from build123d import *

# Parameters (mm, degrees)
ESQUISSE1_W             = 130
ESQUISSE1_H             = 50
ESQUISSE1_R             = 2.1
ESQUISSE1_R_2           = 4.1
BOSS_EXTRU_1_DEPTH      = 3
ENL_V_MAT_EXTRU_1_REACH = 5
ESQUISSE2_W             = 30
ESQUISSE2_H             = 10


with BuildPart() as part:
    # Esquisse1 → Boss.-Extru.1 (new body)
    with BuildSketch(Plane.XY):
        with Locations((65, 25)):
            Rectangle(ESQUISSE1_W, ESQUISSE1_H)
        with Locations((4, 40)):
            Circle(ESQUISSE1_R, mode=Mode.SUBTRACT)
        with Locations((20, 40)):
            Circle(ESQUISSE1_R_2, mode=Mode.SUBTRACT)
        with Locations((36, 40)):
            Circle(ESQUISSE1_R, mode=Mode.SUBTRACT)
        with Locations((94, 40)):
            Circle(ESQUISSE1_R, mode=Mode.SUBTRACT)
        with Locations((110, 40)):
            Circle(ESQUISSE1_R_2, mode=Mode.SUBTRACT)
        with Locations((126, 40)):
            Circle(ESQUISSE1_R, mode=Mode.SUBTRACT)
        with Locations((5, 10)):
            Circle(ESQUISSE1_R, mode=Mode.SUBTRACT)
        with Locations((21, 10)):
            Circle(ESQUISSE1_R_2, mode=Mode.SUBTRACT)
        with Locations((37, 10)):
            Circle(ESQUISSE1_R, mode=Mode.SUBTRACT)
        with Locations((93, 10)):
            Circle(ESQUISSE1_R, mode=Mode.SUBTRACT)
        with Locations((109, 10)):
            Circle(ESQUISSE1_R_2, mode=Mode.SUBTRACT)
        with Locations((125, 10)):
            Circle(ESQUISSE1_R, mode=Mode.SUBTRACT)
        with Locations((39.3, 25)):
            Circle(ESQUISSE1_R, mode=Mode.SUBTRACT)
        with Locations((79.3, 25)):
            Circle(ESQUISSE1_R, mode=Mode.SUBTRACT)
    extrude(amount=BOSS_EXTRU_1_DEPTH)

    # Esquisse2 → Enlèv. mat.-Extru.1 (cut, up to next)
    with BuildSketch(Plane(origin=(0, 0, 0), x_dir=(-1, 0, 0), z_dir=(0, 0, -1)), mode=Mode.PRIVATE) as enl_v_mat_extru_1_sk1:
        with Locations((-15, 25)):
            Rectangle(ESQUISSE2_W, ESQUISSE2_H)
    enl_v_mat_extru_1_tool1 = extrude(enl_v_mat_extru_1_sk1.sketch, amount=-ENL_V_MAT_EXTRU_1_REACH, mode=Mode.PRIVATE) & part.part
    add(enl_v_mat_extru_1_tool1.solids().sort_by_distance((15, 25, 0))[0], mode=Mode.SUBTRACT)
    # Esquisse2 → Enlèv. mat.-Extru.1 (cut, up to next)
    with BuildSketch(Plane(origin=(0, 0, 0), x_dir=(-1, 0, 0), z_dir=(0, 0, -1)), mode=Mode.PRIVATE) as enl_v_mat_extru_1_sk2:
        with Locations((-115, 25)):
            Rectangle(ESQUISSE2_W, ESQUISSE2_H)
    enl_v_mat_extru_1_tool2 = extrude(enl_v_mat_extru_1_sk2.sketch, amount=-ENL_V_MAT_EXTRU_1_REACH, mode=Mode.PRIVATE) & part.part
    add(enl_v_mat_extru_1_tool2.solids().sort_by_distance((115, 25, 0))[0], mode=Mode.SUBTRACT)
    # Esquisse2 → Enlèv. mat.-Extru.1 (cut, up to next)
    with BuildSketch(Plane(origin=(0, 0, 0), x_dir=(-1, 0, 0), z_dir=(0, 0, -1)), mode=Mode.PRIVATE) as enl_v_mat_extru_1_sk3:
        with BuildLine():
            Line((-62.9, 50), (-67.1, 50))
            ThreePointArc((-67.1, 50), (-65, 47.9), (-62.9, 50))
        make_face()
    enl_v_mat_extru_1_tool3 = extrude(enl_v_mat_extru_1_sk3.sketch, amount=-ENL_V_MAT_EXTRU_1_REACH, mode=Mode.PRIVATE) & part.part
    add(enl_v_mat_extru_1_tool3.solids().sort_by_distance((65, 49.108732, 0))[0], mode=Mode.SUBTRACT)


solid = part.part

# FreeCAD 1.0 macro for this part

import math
import FreeCAD as App
import Part
import Sketcher
from FreeCAD import Vector


def add_polygon(sketch, points):
    """Adds a closed chain of lines whose ends are joined by coincident constraints."""
    first, n = sketch.GeometryCount, len(points)
    for a, b in zip(points, points[1:] + points[:1]):
        sketch.addGeometry(Part.LineSegment(App.Vector(*a, 0), App.Vector(*b, 0)), False)
    for i in range(n):
        sketch.addConstraint(Sketcher.Constraint("Coincident", first + i, 2, first + (i + 1) % n, 1))

doc = App.newDocument("Part")
body = doc.addObject("PartDesign::Body", "Body")

sketch1 = body.newObject("Sketcher::SketchObject", "Sketch")
sketch1.AttachmentSupport = (doc.getObject("XY_Plane"), [""])
sketch1.MapMode = "FlatFace"
add_polygon(sketch1, [(0, 50), (0, 0), (130, 0), (130, 50)])
sketch1.addGeometry(Part.Circle(Vector(5, 10, 0), Vector(0, 0, 1), 2.1), False)
sketch1.addGeometry(Part.Circle(Vector(21, 10, 0), Vector(0, 0, 1), 4.1), False)
sketch1.addGeometry(Part.Circle(Vector(37, 10, 0), Vector(0, 0, 1), 2.1), False)
sketch1.addGeometry(Part.Circle(Vector(39.3, 25, 0), Vector(0, 0, 1), 2.1), False)
sketch1.addGeometry(Part.Circle(Vector(93, 10, 0), Vector(0, 0, 1), 2.1), False)
sketch1.addGeometry(Part.Circle(Vector(109, 10, 0), Vector(0, 0, 1), 4.1), False)
sketch1.addGeometry(Part.Circle(Vector(125, 10, 0), Vector(0, 0, 1), 2.1), False)
sketch1.addGeometry(Part.Circle(Vector(79.3, 25, 0), Vector(0, 0, 1), 2.1), False)
sketch1.addGeometry(Part.Circle(Vector(4, 40, 0), Vector(0, 0, 1), 2.1), False)
sketch1.addGeometry(Part.Circle(Vector(20, 40, 0), Vector(0, 0, 1), 4.1), False)
sketch1.addGeometry(Part.Circle(Vector(36, 40, 0), Vector(0, 0, 1), 2.1), False)
sketch1.addGeometry(Part.Circle(Vector(94, 40, 0), Vector(0, 0, 1), 2.1), False)
sketch1.addGeometry(Part.Circle(Vector(110, 40, 0), Vector(0, 0, 1), 4.1), False)
sketch1.addGeometry(Part.Circle(Vector(126, 40, 0), Vector(0, 0, 1), 2.1), False)
sketch1.addConstraint(Sketcher.Constraint("Vertical", 0))
sketch1.addConstraint(Sketcher.Constraint("Horizontal", 1))
sketch1.addConstraint(Sketcher.Constraint("Vertical", 2))
sketch1.addConstraint(Sketcher.Constraint("Horizontal", 3))
sketch1.addConstraint(Sketcher.Constraint("Coincident", 0, 2, -1, 1))
sketch1.addConstraint(Sketcher.Constraint("Equal", 4, 6))
sketch1.addConstraint(Sketcher.Constraint("Equal", 6, 7))
sketch1.addConstraint(Sketcher.Constraint("Equal", 7, 8))
sketch1.addConstraint(Sketcher.Constraint("Equal", 5, 9))
sketch1.addConstraint(Sketcher.Constraint("Equal", 8, 10))
sketch1.addConstraint(Sketcher.Constraint("Equal", 10, 11))
sketch1.addConstraint(Sketcher.Constraint("Equal", 11, 12))
sketch1.addConstraint(Sketcher.Constraint("Equal", 9, 13))
sketch1.addConstraint(Sketcher.Constraint("Equal", 12, 14))
sketch1.addConstraint(Sketcher.Constraint("Equal", 14, 15))
sketch1.addConstraint(Sketcher.Constraint("Equal", 13, 16))
sketch1.addConstraint(Sketcher.Constraint("Equal", 15, 17))
sketch1.addConstraint(Sketcher.Constraint("Horizontal", 4, 3, 5, 3))
sketch1.addConstraint(Sketcher.Constraint("Horizontal", 5, 3, 6, 3))
sketch1.addConstraint(Sketcher.Constraint("Horizontal", 6, 3, 8, 3))
sketch1.addConstraint(Sketcher.Constraint("Horizontal", 8, 3, 9, 3))
sketch1.addConstraint(Sketcher.Constraint("Horizontal", 9, 3, 10, 3))
sketch1.addConstraint(Sketcher.Constraint("Horizontal", 7, 3, 11, 3))
sketch1.addConstraint(Sketcher.Constraint("Horizontal", 12, 3, 13, 3))
sketch1.addConstraint(Sketcher.Constraint("Horizontal", 13, 3, 14, 3))
sketch1.addConstraint(Sketcher.Constraint("Horizontal", 14, 3, 15, 3))
sketch1.addConstraint(Sketcher.Constraint("Horizontal", 15, 3, 16, 3))
sketch1.addConstraint(Sketcher.Constraint("Horizontal", 16, 3, 17, 3))
sketch1.addConstraint(Sketcher.Constraint("Diameter", 4, 4.2))
sketch1.addConstraint(Sketcher.Constraint("Diameter", 5, 8.2))
sketch1.addConstraint(Sketcher.Constraint("DistanceX", 1, 1, 1, 2, 130.0))
sketch1.addConstraint(Sketcher.Constraint("DistanceY", 0, 2, 0, 1, 50.0))
sketch1.addConstraint(Sketcher.Constraint("DistanceX", -1, 1, 4, 3, 5.0))
sketch1.addConstraint(Sketcher.Constraint("DistanceY", -1, 1, 4, 3, 10.0))
sketch1.addConstraint(Sketcher.Constraint("DistanceX", -1, 1, 5, 3, 21.0))
sketch1.addConstraint(Sketcher.Constraint("DistanceX", -1, 1, 6, 3, 37.0))
sketch1.addConstraint(Sketcher.Constraint("DistanceY", -1, 1, 7, 3, 25.0))
sketch1.addConstraint(Sketcher.Constraint("DistanceX", -1, 1, 8, 3, 93.0))
sketch1.addConstraint(Sketcher.Constraint("DistanceX", -1, 1, 9, 3, 109.0))
sketch1.addConstraint(Sketcher.Constraint("DistanceX", -1, 1, 10, 3, 125.0))
sketch1.addConstraint(Sketcher.Constraint("DistanceX", -1, 1, 12, 3, 4.0))
sketch1.addConstraint(Sketcher.Constraint("DistanceY", -1, 1, 12, 3, 40.0))
sketch1.addConstraint(Sketcher.Constraint("DistanceX", -1, 1, 13, 3, 20.0))
sketch1.addConstraint(Sketcher.Constraint("DistanceX", -1, 1, 14, 3, 36.0))
sketch1.addConstraint(Sketcher.Constraint("DistanceX", -1, 1, 15, 3, 94.0))
sketch1.addConstraint(Sketcher.Constraint("DistanceX", -1, 1, 16, 3, 110.0))
sketch1.addConstraint(Sketcher.Constraint("DistanceX", -1, 1, 17, 3, 126.0))
sketch1.addConstraint(Sketcher.Constraint("DistanceX", 7, 3, 11, 3, 40.0))
sketch1.addConstraint(Sketcher.Constraint("DistanceX", -1, 1, 7, 3, 39.3))
pad1 = body.newObject("PartDesign::Pad", "Pad")
pad1.Profile = sketch1
pad1.Length = 3

sketch2 = body.newObject("Sketcher::SketchObject", "Sketch001")
sketch2.AttachmentSupport = (doc.getObject("XY_Plane"), [""])
sketch2.MapMode = "FlatFace"
add_polygon(sketch2, [(30, 30), (30, 20), (0, 20), (0, 30)])
sketch2.addConstraint(Sketcher.Constraint("Vertical", 0))
sketch2.addConstraint(Sketcher.Constraint("Horizontal", 1))
sketch2.addConstraint(Sketcher.Constraint("Vertical", 2))
sketch2.addConstraint(Sketcher.Constraint("Horizontal", 3))
sketch2.addConstraint(Sketcher.Constraint("PointOnObject", 1, 2, -2))
sketch2.addConstraint(Sketcher.Constraint("DistanceX", 1, 2, 1, 1, 30.0))
sketch2.addConstraint(Sketcher.Constraint("DistanceY", 0, 2, 0, 1, 10.0))
sketch2.addConstraint(Sketcher.Constraint("DistanceY", -1, 1, 0, 2, 20.0))
pocket1 = body.newObject("PartDesign::Pocket", "Pocket")
pocket1.Profile = sketch2
pocket1.Type = "UpToFirst"
pocket1.Reversed = True

sketch3 = body.newObject("Sketcher::SketchObject", "Sketch002")
sketch3.AttachmentSupport = (doc.getObject("XY_Plane"), [""])
sketch3.MapMode = "FlatFace"
add_polygon(sketch3, [(130, 30), (130, 20), (100, 20), (100, 30)])
sketch3.addConstraint(Sketcher.Constraint("Vertical", 0))
sketch3.addConstraint(Sketcher.Constraint("Horizontal", 1))
sketch3.addConstraint(Sketcher.Constraint("Vertical", 2))
sketch3.addConstraint(Sketcher.Constraint("Horizontal", 3))
sketch3.addConstraint(Sketcher.Constraint("DistanceX", 1, 2, 1, 1, 30.0))
sketch3.addConstraint(Sketcher.Constraint("DistanceY", 0, 2, 0, 1, 10.0))
sketch3.addConstraint(Sketcher.Constraint("DistanceX", -1, 1, 0, 2, 130.0))
sketch3.addConstraint(Sketcher.Constraint("DistanceY", -1, 1, 0, 2, 20.0))
pocket2 = body.newObject("PartDesign::Pocket", "Pocket001")
pocket2.Profile = sketch3
pocket2.Type = "UpToFirst"
pocket2.Reversed = True

sketch4 = body.newObject("Sketcher::SketchObject", "Sketch003")
sketch4.AttachmentSupport = (doc.getObject("XY_Plane"), [""])
sketch4.MapMode = "FlatFace"
sketch4.addGeometry(Part.LineSegment(Vector(62.9, 50, 0), Vector(67.1, 50, 0)), False)
sketch4.addGeometry(Part.ArcOfCircle(Part.Circle(Vector(65, 50, 0), Vector(0, 0, 1), 2.1), math.radians(180), math.radians(360)), False)
sketch4.addConstraint(Sketcher.Constraint("Coincident", 0, 1, 1, 1))
sketch4.addConstraint(Sketcher.Constraint("Coincident", 1, 2, 0, 2))
sketch4.addConstraint(Sketcher.Constraint("Horizontal", 0))
sketch4.addConstraint(Sketcher.Constraint("Horizontal", 1, 3, 0, 1))
sketch4.addConstraint(Sketcher.Constraint("Radius", 1, 2.1))
sketch4.addConstraint(Sketcher.Constraint("DistanceX", -1, 1, 1, 3, 65.0))
sketch4.addConstraint(Sketcher.Constraint("DistanceY", -1, 1, 1, 3, 50.0))
pocket3 = body.newObject("PartDesign::Pocket", "Pocket002")
pocket3.Profile = sketch4
pocket3.Type = "UpToFirst"
pocket3.Reversed = True

doc.recompute()
